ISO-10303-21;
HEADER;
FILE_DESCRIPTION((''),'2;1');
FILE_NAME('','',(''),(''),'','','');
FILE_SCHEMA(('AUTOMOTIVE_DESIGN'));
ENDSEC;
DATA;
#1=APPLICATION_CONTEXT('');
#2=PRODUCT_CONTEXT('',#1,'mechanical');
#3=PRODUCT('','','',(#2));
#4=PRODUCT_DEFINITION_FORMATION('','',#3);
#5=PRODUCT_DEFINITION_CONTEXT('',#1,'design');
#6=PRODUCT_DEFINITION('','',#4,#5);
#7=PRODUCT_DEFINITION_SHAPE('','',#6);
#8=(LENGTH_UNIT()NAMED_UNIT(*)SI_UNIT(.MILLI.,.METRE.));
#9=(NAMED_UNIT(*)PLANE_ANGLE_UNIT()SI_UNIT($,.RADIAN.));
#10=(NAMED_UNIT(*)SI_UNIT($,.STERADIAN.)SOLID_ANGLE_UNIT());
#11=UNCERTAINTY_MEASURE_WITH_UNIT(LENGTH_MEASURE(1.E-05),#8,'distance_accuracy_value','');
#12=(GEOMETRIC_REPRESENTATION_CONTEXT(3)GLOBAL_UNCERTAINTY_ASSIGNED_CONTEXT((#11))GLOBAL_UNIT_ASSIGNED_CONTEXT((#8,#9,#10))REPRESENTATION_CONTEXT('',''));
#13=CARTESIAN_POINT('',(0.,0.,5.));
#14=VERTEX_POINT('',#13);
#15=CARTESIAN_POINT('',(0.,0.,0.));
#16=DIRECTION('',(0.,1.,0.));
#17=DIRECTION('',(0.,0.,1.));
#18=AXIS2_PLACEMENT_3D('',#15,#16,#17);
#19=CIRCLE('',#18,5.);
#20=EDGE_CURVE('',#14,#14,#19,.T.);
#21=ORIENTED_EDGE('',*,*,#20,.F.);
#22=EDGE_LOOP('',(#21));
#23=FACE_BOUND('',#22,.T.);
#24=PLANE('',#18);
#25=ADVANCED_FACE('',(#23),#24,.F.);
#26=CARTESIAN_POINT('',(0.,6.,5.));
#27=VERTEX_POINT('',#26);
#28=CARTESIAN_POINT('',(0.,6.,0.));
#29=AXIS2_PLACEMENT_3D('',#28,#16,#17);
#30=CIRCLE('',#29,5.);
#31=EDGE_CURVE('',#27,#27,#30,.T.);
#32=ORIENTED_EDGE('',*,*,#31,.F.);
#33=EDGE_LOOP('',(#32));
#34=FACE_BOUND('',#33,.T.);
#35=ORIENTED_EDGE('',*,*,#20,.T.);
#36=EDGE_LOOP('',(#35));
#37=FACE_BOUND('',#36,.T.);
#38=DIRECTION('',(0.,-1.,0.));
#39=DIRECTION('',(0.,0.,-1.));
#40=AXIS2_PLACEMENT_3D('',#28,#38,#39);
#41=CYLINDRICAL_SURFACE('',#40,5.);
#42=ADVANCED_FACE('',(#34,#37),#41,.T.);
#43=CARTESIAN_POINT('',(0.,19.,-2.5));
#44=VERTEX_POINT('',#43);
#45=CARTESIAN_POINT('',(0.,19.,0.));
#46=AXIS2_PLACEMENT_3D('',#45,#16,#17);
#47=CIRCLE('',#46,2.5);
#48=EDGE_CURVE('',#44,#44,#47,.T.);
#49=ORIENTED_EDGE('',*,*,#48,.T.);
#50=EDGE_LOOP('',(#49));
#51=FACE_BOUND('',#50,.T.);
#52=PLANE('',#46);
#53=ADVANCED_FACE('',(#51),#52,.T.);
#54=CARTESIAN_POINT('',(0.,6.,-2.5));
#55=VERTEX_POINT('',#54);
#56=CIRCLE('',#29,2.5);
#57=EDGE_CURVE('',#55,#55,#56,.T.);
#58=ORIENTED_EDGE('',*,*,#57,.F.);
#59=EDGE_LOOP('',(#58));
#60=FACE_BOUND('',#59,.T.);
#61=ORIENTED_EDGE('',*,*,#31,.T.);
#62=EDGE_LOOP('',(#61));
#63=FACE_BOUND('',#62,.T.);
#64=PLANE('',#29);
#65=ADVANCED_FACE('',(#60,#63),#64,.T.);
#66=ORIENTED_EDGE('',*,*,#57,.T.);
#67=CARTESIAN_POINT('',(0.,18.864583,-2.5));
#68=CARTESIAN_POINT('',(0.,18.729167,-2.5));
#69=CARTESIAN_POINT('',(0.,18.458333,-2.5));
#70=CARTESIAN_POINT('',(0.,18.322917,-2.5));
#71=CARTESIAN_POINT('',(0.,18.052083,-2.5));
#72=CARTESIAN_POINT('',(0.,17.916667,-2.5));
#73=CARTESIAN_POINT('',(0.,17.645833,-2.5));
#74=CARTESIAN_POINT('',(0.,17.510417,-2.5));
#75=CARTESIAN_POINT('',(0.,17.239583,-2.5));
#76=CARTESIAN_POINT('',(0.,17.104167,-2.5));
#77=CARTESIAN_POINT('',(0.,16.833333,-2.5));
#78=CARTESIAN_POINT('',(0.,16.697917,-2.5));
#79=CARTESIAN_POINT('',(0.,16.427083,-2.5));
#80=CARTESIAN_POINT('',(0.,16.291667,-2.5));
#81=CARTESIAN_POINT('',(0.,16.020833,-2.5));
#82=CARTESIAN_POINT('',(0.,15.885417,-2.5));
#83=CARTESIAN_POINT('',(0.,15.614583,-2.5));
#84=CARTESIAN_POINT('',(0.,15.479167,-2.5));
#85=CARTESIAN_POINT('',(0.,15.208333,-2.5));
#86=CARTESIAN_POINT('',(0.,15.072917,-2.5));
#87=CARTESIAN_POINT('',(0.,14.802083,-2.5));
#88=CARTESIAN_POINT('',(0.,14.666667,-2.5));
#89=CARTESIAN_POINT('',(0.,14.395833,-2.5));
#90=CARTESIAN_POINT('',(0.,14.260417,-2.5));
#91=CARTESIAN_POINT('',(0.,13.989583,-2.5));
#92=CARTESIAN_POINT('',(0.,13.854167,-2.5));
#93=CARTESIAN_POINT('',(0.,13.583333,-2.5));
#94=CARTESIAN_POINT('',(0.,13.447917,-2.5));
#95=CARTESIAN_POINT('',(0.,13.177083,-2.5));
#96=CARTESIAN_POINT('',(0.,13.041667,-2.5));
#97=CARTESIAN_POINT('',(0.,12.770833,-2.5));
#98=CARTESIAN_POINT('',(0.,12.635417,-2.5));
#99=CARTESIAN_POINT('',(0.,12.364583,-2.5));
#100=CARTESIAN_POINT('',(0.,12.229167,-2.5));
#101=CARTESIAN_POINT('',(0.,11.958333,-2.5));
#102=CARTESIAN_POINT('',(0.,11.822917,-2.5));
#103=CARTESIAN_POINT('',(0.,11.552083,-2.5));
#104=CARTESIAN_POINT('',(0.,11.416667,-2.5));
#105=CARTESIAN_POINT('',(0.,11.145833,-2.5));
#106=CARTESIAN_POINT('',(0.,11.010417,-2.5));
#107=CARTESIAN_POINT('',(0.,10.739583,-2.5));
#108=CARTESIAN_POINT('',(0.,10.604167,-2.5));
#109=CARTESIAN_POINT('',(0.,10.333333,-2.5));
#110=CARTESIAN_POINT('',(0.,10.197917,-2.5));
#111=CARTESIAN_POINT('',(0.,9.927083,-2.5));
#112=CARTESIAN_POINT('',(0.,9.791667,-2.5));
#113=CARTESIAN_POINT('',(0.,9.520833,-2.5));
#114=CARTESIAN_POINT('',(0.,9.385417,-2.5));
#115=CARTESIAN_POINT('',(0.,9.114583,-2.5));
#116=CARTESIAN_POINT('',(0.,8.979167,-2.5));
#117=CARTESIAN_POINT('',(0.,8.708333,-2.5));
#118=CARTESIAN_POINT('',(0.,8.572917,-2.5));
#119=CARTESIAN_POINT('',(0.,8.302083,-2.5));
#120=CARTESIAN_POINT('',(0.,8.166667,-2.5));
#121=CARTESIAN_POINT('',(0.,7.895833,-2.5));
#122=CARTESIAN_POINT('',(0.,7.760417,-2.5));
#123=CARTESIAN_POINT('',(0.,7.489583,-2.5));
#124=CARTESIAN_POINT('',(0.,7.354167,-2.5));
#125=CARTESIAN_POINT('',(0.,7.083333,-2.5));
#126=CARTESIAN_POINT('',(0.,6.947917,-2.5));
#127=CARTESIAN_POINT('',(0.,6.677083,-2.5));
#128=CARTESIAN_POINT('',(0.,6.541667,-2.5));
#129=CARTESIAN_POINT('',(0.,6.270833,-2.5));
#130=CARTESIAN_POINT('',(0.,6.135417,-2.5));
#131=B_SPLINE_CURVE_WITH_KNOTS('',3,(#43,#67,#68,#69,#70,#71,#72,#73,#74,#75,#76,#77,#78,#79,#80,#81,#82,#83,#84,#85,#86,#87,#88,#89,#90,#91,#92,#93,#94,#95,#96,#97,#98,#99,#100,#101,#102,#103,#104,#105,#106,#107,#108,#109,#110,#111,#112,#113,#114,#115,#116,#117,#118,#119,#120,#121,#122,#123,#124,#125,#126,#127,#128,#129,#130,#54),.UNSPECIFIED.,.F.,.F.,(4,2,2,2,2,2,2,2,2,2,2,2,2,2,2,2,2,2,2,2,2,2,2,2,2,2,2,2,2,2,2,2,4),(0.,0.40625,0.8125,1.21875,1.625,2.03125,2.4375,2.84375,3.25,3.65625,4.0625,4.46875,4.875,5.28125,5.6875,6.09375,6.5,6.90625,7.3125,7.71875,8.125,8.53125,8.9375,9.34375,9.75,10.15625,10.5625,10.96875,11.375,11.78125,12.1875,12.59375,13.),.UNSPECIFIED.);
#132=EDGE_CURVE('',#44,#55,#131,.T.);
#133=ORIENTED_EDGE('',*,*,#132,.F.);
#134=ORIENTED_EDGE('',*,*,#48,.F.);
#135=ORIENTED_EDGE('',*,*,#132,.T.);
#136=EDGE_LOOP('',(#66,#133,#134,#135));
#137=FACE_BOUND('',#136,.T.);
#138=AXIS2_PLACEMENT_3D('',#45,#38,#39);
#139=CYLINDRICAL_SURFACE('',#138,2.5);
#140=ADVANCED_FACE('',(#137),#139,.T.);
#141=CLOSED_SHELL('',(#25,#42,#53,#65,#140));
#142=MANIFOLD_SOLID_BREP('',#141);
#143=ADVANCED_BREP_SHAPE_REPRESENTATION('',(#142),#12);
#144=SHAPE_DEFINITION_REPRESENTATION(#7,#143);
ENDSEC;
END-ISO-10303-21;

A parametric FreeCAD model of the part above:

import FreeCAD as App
import Part
import Sketcher
from FreeCAD import Vector
Q = App.Units.Quantity

doc = App.newDocument("Part")
body = doc.addObject("PartDesign::Body", "Body")

sketch1 = body.newObject("Sketcher::SketchObject", "Sketch")
sketch1.AttachmentSupport = (doc.getObject("XZ_Plane"), [""])
sketch1.MapMode = "FlatFace"
sketch1.addGeometry(Part.Circle(Vector(0, 0, 0), Vector(0, 0, 1), 5), False)
sketch1.addConstraint([
    Sketcher.Constraint("Coincident", 0, 3, -1, 1),
    Sketcher.Constraint("Diameter", 0, Q("10 mm")),
])
pad1 = body.newObject("PartDesign::Pad", "Pad")
pad1.Profile = sketch1
pad1.Length = 6
pad1.Reversed = True

sketch2 = body.newObject("Sketcher::SketchObject", "Sketch001")
sketch2.AttachmentSupport = (doc.getObject("XZ_Plane"), [""])
sketch2.MapMode = "FlatFace"
sketch2.AttachmentOffset = App.Placement(Vector(0, 0, -6), App.Rotation())
sketch2.addGeometry(Part.Circle(Vector(0, 0, 0), Vector(0, 0, 1), 2.5), False)
sketch2.addConstraint([
    Sketcher.Constraint("Coincident", 0, 3, -1, 1),
    Sketcher.Constraint("Diameter", 0, Q("5 mm")),
])
pad2 = body.newObject("PartDesign::Pad", "Pad001")
pad2.Profile = sketch2
pad2.Length = 13
pad2.Reversed = True

doc.recompute()
